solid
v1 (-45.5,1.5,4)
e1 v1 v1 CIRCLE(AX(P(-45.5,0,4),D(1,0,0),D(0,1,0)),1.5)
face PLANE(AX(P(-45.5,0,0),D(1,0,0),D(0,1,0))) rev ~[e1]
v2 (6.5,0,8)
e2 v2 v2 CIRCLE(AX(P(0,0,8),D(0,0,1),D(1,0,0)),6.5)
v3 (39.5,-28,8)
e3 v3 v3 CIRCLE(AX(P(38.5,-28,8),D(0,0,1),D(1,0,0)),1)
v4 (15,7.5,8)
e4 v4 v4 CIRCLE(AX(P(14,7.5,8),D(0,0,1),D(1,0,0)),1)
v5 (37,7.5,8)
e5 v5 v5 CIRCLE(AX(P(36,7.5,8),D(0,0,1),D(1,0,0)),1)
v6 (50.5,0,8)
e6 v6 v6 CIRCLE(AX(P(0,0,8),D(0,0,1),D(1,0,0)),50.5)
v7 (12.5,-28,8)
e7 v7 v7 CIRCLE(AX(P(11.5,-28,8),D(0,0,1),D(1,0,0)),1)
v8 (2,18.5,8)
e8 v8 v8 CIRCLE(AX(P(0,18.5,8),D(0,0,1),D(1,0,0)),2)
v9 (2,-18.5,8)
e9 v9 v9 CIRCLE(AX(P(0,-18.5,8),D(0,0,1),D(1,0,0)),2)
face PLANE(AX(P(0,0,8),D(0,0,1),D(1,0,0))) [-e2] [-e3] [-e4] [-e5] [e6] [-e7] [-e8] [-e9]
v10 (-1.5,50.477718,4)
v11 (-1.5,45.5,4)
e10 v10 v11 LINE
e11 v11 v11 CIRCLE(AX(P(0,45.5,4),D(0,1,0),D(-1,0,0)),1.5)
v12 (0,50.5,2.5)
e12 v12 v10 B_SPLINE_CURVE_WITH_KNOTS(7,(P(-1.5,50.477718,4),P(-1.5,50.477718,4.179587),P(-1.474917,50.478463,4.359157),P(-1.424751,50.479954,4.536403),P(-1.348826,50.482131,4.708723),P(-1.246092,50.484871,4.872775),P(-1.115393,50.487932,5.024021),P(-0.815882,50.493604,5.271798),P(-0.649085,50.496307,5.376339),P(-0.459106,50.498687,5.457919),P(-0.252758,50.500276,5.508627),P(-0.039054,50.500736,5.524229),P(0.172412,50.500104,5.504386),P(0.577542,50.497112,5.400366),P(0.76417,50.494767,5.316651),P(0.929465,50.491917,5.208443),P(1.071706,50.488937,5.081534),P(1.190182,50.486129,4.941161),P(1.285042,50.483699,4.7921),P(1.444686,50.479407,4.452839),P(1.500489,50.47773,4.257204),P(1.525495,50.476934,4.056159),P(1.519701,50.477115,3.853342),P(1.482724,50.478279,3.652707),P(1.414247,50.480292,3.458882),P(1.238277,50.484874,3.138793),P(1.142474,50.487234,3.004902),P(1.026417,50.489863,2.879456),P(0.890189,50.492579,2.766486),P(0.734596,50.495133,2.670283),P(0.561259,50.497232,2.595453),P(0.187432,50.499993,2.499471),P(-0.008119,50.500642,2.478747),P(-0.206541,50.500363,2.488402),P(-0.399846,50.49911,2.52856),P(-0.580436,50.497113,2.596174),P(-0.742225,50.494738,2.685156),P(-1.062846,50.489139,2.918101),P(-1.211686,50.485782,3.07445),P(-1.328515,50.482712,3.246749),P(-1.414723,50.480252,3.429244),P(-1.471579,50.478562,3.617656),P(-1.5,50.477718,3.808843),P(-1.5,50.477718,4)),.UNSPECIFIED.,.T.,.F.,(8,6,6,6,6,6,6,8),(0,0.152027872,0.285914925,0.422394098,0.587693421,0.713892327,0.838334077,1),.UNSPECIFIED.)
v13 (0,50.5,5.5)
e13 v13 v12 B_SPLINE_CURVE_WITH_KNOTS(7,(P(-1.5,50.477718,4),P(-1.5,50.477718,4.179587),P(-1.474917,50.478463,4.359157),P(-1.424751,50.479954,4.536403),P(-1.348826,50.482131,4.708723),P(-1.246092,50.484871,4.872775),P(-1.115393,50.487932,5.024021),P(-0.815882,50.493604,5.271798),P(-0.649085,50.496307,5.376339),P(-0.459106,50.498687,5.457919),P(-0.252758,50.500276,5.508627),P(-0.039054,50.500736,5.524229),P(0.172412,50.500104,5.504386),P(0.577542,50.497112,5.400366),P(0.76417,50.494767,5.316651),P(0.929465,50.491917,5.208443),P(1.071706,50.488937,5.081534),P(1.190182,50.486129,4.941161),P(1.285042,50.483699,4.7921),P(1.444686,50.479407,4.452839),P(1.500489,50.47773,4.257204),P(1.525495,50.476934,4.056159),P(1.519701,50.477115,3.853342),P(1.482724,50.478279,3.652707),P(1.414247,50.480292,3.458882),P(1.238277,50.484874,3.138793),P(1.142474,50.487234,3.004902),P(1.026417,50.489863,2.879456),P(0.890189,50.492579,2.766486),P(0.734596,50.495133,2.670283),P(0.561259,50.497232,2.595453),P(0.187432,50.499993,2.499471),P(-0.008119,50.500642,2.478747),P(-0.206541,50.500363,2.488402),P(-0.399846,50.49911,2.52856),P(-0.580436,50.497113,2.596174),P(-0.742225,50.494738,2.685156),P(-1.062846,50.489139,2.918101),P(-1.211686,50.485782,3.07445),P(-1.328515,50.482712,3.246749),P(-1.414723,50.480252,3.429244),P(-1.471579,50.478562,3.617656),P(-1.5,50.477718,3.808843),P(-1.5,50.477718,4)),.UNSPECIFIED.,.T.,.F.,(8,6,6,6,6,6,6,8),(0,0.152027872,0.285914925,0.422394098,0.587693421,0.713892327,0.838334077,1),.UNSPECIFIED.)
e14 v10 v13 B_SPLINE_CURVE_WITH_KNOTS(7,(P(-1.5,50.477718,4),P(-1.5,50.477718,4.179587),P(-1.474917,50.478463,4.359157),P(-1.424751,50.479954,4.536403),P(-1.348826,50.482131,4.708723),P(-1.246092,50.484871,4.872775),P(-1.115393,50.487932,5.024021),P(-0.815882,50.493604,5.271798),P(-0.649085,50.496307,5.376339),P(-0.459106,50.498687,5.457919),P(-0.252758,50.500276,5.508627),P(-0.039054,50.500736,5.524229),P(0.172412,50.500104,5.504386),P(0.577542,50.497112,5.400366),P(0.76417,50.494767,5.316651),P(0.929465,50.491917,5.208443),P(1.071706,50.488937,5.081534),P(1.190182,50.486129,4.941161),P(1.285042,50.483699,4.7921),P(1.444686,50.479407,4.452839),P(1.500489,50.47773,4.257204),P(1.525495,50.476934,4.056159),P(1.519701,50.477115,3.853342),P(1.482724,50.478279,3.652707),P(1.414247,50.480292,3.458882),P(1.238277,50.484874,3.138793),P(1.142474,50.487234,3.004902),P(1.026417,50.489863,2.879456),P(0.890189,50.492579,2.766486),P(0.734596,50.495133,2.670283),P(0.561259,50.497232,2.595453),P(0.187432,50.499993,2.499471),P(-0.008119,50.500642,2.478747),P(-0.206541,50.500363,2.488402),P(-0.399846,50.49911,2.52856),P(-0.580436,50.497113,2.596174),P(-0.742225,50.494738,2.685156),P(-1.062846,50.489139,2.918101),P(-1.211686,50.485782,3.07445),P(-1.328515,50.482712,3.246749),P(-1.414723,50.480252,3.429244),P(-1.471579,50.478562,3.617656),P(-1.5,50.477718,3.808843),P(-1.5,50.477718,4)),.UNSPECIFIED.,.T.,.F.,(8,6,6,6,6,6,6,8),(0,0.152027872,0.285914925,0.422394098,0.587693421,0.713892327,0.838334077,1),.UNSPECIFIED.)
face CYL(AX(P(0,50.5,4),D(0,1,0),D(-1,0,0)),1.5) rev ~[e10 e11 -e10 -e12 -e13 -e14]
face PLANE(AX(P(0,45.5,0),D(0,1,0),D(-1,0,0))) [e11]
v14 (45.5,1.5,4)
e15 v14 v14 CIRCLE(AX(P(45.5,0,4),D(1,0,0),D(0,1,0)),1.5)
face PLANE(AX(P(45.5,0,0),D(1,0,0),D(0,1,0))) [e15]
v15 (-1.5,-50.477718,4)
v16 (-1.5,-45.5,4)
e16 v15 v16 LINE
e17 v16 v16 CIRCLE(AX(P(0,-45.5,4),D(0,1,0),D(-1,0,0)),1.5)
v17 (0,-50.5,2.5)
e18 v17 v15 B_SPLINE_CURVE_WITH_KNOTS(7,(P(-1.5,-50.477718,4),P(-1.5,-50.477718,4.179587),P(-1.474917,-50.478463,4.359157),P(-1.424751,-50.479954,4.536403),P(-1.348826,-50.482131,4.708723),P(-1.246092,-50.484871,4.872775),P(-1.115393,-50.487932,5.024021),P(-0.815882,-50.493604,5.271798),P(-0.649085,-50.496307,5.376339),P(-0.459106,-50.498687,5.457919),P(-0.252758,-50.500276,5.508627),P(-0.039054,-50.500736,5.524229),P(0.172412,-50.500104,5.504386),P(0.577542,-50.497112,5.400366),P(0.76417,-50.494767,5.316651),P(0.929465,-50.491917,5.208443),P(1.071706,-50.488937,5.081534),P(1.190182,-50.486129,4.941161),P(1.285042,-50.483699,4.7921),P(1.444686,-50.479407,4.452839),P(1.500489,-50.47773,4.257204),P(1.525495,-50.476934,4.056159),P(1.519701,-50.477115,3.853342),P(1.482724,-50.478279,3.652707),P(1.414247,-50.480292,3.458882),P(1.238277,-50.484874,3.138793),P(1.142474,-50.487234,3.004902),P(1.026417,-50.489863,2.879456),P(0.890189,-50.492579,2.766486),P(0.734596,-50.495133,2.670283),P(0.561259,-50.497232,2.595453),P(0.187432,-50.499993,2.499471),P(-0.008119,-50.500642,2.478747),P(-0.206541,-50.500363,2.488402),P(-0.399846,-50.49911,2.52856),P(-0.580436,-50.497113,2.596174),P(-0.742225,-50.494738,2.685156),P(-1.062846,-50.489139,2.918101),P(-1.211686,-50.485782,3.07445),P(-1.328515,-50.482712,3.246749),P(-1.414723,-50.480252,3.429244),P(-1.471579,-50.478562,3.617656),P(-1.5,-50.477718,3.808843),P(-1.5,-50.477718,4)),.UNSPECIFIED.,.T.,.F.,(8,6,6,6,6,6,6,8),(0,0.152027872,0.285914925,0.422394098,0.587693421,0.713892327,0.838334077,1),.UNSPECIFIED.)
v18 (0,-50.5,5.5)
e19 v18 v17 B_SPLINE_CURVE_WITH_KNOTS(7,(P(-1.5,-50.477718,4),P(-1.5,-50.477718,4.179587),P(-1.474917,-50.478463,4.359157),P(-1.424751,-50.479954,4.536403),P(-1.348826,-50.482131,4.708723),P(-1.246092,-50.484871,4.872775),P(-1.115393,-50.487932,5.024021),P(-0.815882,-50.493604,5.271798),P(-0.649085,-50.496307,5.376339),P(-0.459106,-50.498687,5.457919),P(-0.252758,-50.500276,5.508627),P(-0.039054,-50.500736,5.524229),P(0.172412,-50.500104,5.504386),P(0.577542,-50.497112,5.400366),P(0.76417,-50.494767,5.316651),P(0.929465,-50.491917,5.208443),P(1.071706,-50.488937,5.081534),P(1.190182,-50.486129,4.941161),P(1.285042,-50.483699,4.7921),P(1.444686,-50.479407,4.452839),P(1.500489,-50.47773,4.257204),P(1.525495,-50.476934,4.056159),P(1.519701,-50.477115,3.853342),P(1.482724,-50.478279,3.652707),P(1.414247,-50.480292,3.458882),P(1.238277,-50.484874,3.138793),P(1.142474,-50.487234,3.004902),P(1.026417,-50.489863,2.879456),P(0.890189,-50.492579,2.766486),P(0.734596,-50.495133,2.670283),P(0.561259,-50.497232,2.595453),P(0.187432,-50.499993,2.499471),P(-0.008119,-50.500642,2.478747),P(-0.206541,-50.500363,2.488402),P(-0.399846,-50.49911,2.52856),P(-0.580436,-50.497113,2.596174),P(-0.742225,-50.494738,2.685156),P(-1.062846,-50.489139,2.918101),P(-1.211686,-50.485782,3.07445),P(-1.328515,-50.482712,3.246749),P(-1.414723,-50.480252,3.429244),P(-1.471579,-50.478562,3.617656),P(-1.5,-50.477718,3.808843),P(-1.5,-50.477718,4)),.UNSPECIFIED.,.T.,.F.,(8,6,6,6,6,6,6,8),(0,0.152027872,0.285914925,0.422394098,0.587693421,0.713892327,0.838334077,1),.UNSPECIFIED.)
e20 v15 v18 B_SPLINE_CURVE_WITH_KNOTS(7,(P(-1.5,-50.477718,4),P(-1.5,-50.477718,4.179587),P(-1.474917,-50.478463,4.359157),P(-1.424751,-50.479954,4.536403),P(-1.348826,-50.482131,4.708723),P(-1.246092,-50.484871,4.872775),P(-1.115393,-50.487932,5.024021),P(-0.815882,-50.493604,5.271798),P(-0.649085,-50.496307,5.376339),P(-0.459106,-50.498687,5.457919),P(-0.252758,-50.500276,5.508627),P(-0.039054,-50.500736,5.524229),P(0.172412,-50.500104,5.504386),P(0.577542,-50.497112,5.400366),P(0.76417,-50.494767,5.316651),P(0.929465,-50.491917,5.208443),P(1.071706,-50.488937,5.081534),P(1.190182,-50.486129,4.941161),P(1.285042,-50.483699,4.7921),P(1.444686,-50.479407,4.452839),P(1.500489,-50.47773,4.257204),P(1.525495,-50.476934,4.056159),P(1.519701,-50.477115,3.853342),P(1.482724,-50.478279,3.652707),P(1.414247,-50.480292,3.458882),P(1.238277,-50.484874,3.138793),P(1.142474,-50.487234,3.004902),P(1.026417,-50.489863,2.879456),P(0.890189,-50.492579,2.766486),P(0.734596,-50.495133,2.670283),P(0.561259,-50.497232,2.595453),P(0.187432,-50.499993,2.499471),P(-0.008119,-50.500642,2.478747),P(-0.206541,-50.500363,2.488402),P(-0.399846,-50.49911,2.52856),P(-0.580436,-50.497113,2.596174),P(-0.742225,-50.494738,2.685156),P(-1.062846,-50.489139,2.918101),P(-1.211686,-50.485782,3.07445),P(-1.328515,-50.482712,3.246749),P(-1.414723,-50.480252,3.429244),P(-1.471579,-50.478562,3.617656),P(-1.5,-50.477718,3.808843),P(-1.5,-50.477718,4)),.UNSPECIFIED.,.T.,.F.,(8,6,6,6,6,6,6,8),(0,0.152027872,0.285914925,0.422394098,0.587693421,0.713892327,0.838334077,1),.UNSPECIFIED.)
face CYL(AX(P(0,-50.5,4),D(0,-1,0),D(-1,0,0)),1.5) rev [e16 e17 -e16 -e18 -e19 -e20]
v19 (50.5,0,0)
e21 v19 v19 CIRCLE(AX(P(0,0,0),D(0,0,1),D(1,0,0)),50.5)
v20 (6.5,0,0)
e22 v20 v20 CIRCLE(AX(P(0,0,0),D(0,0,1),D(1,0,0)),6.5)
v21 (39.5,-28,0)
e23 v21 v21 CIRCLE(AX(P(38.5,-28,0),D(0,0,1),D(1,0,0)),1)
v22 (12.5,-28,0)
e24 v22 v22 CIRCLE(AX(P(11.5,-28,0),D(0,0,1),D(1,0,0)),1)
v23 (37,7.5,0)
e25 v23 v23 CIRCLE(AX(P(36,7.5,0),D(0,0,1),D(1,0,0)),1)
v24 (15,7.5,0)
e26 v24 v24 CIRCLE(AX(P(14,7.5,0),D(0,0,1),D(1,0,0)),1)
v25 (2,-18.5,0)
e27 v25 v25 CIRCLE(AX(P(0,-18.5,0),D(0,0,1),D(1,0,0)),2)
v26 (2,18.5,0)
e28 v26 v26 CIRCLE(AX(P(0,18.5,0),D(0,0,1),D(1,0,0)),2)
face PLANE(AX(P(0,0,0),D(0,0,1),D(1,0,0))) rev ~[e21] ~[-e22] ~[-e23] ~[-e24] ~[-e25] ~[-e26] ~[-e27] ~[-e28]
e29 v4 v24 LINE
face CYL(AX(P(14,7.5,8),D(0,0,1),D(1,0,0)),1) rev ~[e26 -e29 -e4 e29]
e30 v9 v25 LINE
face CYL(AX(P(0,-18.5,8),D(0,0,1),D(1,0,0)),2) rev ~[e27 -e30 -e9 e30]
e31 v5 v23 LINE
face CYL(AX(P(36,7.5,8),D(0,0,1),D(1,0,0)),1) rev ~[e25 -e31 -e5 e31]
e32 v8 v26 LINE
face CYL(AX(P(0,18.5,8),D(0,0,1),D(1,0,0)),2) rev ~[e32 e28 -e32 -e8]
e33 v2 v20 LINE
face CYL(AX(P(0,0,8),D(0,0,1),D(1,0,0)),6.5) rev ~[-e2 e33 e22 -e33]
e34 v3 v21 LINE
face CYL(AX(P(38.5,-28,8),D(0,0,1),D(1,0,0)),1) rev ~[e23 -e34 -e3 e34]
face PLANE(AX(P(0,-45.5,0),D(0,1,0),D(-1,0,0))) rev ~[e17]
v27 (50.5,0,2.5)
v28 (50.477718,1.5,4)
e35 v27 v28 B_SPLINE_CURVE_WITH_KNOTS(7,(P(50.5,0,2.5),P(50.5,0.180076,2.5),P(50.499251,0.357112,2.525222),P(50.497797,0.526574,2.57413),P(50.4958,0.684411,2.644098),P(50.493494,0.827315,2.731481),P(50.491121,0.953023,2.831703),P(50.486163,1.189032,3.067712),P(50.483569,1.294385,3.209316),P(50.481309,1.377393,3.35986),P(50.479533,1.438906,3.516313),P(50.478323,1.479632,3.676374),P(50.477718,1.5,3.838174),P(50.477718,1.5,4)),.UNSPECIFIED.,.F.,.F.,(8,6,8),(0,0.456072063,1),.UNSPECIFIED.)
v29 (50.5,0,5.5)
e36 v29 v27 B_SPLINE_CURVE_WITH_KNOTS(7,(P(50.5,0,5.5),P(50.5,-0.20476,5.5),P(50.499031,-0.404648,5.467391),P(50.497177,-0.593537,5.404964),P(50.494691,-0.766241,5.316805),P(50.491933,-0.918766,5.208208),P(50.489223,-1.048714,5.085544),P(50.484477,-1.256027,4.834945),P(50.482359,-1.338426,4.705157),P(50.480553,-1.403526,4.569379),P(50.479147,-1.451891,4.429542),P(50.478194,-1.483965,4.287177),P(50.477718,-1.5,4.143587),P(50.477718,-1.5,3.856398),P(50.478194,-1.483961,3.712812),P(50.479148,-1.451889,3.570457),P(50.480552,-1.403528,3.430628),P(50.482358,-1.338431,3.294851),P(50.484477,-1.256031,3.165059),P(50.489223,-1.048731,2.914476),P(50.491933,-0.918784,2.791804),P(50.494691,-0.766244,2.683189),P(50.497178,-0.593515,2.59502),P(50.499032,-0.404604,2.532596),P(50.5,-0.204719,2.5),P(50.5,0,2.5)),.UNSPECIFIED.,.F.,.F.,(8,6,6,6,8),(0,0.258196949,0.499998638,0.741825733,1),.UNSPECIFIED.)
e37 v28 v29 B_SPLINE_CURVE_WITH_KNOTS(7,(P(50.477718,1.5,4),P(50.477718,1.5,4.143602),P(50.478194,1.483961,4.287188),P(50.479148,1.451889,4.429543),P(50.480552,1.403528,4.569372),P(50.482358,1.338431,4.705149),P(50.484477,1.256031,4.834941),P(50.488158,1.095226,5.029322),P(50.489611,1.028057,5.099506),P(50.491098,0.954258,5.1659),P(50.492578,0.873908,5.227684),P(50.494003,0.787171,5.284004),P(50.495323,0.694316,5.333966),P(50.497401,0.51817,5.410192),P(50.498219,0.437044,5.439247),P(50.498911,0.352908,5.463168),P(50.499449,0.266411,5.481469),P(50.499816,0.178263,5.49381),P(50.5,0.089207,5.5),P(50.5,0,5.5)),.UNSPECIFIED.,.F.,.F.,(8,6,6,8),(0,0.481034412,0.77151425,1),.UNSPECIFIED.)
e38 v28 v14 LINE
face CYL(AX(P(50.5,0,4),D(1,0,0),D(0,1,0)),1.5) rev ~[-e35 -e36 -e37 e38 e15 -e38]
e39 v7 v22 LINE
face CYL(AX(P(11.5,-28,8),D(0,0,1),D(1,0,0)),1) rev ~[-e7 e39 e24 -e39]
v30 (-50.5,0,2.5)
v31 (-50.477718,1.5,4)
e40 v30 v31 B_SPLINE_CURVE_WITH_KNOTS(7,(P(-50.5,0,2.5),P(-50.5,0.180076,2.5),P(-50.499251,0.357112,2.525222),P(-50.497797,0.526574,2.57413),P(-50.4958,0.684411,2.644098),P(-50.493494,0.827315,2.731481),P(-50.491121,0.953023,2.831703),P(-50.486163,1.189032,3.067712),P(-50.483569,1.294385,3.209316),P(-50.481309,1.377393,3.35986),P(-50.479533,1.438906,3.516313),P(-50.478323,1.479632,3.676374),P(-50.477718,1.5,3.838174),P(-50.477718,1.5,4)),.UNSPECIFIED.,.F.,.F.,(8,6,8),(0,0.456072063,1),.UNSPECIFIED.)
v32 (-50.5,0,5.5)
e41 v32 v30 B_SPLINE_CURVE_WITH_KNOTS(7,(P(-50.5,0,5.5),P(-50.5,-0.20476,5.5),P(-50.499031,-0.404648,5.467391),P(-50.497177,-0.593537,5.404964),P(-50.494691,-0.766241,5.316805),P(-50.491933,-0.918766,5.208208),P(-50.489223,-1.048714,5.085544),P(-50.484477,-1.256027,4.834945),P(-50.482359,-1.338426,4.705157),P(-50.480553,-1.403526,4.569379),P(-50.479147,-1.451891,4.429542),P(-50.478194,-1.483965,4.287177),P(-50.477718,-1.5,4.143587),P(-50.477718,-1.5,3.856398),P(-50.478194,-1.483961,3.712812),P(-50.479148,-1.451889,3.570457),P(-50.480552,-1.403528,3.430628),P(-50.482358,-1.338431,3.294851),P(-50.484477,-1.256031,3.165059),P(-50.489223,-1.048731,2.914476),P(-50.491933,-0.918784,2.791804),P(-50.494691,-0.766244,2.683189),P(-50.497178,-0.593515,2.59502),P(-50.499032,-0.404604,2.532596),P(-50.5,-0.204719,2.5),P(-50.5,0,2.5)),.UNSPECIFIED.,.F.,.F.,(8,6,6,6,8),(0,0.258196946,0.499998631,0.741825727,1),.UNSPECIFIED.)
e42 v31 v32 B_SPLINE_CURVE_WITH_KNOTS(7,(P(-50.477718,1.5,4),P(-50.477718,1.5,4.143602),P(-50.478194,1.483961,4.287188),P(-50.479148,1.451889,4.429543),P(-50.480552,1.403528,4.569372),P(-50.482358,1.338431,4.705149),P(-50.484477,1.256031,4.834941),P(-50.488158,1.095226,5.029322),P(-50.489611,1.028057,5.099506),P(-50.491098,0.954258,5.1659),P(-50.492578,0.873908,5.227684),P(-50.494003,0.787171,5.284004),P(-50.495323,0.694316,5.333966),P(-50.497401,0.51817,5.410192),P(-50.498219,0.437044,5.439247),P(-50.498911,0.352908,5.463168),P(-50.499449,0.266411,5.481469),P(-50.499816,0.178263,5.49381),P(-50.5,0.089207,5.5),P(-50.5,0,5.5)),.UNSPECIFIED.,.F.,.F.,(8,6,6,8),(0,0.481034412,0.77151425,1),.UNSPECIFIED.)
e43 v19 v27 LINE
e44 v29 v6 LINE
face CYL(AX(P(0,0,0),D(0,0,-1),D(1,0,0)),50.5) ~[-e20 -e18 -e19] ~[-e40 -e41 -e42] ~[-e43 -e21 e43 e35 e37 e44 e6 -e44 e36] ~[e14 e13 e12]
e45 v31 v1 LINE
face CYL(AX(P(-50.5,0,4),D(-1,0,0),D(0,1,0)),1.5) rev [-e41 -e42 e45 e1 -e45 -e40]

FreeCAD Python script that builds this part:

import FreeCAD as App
import Part
import Sketcher

V = App.Vector

doc = App.newDocument("Part")
params = doc.addObject("Spreadsheet::Sheet", "Params")
for row, (alias, value) in enumerate([
    ("sketch1_diameter", "101 mm"),
    ("pad1_length", "8 mm"),
    ("sketch2_diameter", "3 mm"),
    ("pocket1_length", "5 mm"),
    ("sketch3_diameter", "3 mm"),
    ("pocket2_length", "5 mm"),
    ("sketch4_diameter", "3 mm"),
    ("pocket3_length", "5 mm"),
    ("sketch5_diameter", "3 mm"),
    ("pocket4_length", "5 mm"),
    ("sketch6_diameter", "4 mm"),
    ("sketch6_diameter2", "13 mm"),
    ("pocket5_length", "8 mm"),
    ("sketch7_diameter", "2 mm"),
    ("pocket6_length", "8 mm"),
], start=1):
    params.set(f"A{row}", alias)
    params.set(f"B{row}", "=" + value)
    params.setAlias(f"B{row}", alias)

body = doc.addObject("PartDesign::Body", "Body")

sketch1 = doc.addObject("Sketcher::SketchObject", "Sketch")
body.addObject(sketch1)
sketch1.AttachmentSupport = (doc.XY_Plane, [""])
sketch1.MapMode = "FlatFace"
sketch1.addGeometry(Part.Circle(V(0, 0, 0), V(0, 0, 1), 50.5), False)
sketch1.addConstraint([
    Sketcher.Constraint("Coincident", 0, 3, -1, 1),
    Sketcher.Constraint("Diameter", 0, 101.0),
])
sketch1.setExpression("Constraints[1]", "Params.sketch1_diameter")
pad1 = doc.addObject("PartDesign::Pad", "Pad")
body.addObject(pad1)
pad1.Profile = sketch1
pad1.setExpression("Length", "Params.pad1_length")

sketch2 = doc.addObject("Sketcher::SketchObject", "Sketch001")
body.addObject(sketch2)
sketch2.AttachmentSupport = (doc.YZ_Plane, [""])
sketch2.MapMode = "FlatFace"
sketch2.AttachmentOffset = App.Placement(V(0, 0, 50.5), App.Rotation())
sketch2.addGeometry(Part.Circle(V(0, 4, 0), V(0, 0, 1), 1.5), False)
sketch2.addConstraint([
    Sketcher.Constraint("PointOnObject", 0, 3, -2),
    Sketcher.Constraint("Diameter", 0, 3.0),
    Sketcher.Constraint("DistanceY", -1, 1, 0, 3, 4.0),
])
sketch2.setExpression("Constraints[1]", "Params.sketch2_diameter")
pocket1 = doc.addObject("PartDesign::Pocket", "Pocket")
body.addObject(pocket1)
pocket1.Profile = sketch2
pocket1.setExpression("Length", "Params.pocket1_length")

sketch3 = doc.addObject("Sketcher::SketchObject", "Sketch002")
body.addObject(sketch3)
sketch3.AttachmentSupport = (doc.YZ_Plane, [""])
sketch3.MapMode = "FlatFace"
sketch3.AttachmentOffset = App.Placement(V(0, 0, -50.5), App.Rotation())
sketch3.addGeometry(Part.Circle(V(0, 4, 0), V(0, 0, 1), 1.5), False)
sketch3.addConstraint([
    Sketcher.Constraint("PointOnObject", 0, 3, -2),
    Sketcher.Constraint("Diameter", 0, 3.0),
    Sketcher.Constraint("DistanceY", -1, 1, 0, 3, 4.0),
])
sketch3.setExpression("Constraints[1]", "Params.sketch3_diameter")
pocket2 = doc.addObject("PartDesign::Pocket", "Pocket001")
body.addObject(pocket2)
pocket2.Profile = sketch3
pocket2.setExpression("Length", "Params.pocket2_length")
pocket2.Reversed = True

sketch4 = doc.addObject("Sketcher::SketchObject", "Sketch003")
body.addObject(sketch4)
sketch4.AttachmentSupport = (doc.XZ_Plane, [""])
sketch4.MapMode = "FlatFace"
sketch4.AttachmentOffset = App.Placement(V(0, 0, -50.5), App.Rotation())
sketch4.addGeometry(Part.Circle(V(0, 4, 0), V(0, 0, 1), 1.5), False)
sketch4.addConstraint([
    Sketcher.Constraint("PointOnObject", 0, 3, -2),
    Sketcher.Constraint("Diameter", 0, 3.0),
    Sketcher.Constraint("DistanceY", -1, 1, 0, 3, 4.0),
])
sketch4.setExpression("Constraints[1]", "Params.sketch4_diameter")
pocket3 = doc.addObject("PartDesign::Pocket", "Pocket002")
body.addObject(pocket3)
pocket3.Profile = sketch4
pocket3.setExpression("Length", "Params.pocket3_length")
pocket3.Reversed = True

sketch5 = doc.addObject("Sketcher::SketchObject", "Sketch004")
body.addObject(sketch5)
sketch5.AttachmentSupport = (doc.XZ_Plane, [""])
sketch5.MapMode = "FlatFace"
sketch5.AttachmentOffset = App.Placement(V(0, 0, 50.5), App.Rotation())
sketch5.addGeometry(Part.Circle(V(0, 4, 0), V(0, 0, 1), 1.5), False)
sketch5.addConstraint([
    Sketcher.Constraint("PointOnObject", 0, 3, -2),
    Sketcher.Constraint("Diameter", 0, 3.0),
    Sketcher.Constraint("DistanceY", -1, 1, 0, 3, 4.0),
])
sketch5.setExpression("Constraints[1]", "Params.sketch5_diameter")
pocket4 = doc.addObject("PartDesign::Pocket", "Pocket003")
body.addObject(pocket4)
pocket4.Profile = sketch5
pocket4.setExpression("Length", "Params.pocket4_length")

sketch6 = doc.addObject("Sketcher::SketchObject", "Sketch005")
body.addObject(sketch6)
sketch6.AttachmentSupport = (doc.XY_Plane, [""])
sketch6.MapMode = "FlatFace"
sketch6.AttachmentOffset = App.Placement(V(0, 0, 8), App.Rotation())
sketch6.addGeometry([
    Part.Circle(V(0, 18.5, 0), V(0, 0, 1), 2),
    Part.Circle(V(0, -18.5, 0), V(0, 0, 1), 2),
    Part.Circle(V(0, 0, 0), V(0, 0, 1), 6.5),
], False)
sketch6.addConstraint([
    Sketcher.Constraint("Coincident", 2, 3, -1, 1),
    Sketcher.Constraint("Equal", 0, 1),
    Sketcher.Constraint("Symmetric", 0, 3, 1, 3, -1, 1),
    Sketcher.Constraint("PointOnObject", 0, 3, -2),
    Sketcher.Constraint("Diameter", 0, 4.0),
    Sketcher.Constraint("Diameter", 2, 13.0),
    Sketcher.Constraint("DistanceY", -1, 1, 0, 3, 18.5),
])
sketch6.setExpression("Constraints[4]", "Params.sketch6_diameter")
sketch6.setExpression("Constraints[5]", "Params.sketch6_diameter2")
pocket5 = doc.addObject("PartDesign::Pocket", "Pocket004")
body.addObject(pocket5)
pocket5.Profile = sketch6
pocket5.setExpression("Length", "Params.pocket5_length")

sketch7 = doc.addObject("Sketcher::SketchObject", "Sketch006")
body.addObject(sketch7)
sketch7.AttachmentSupport = (doc.XY_Plane, [""])
sketch7.MapMode = "FlatFace"
sketch7.AttachmentOffset = App.Placement(V(0, 0, 8), App.Rotation())
sketch7.addGeometry([
    Part.Circle(V(36, 7.5, 0), V(0, 0, 1), 1),
    Part.Circle(V(14, 7.5, 0), V(0, 0, 1), 1),
    Part.Circle(V(11.5, -28, 0), V(0, 0, 1), 1),
    Part.Circle(V(38.5, -28, 0), V(0, 0, 1), 1),
], False)
sketch7.addConstraint([
    Sketcher.Constraint("Equal", 0, 1),
    Sketcher.Constraint("Equal", 1, 2),
    Sketcher.Constraint("Equal", 2, 3),
    Sketcher.Constraint("Horizontal", 0, 3, 1, 3),
    Sketcher.Constraint("Horizontal", 2, 3, 3, 3),
    Sketcher.Constraint("Diameter", 0, 2.0),
    Sketcher.Constraint("DistanceY", 2, 3, -1, 1, 28.0),
    Sketcher.Constraint("DistanceX", 1, 3, 0, 3, 22.0),
    Sketcher.Constraint("DistanceX", 2, 3, 3, 3, 27.0),
    Sketcher.Constraint("DistanceY", -1, 1, 0, 3, 7.5),
    Sketcher.Constraint("DistanceX", -1, 1, 0, 3, 36.0),
    Sketcher.Constraint("DistanceX", -1, 1, 2, 3, 11.5),
])
sketch7.setExpression("Constraints[5]", "Params.sketch7_diameter")
pocket6 = doc.addObject("PartDesign::Pocket", "Pocket005")
body.addObject(pocket6)
pocket6.Profile = sketch7
pocket6.setExpression("Length", "Params.pocket6_length")

doc.recompute()
